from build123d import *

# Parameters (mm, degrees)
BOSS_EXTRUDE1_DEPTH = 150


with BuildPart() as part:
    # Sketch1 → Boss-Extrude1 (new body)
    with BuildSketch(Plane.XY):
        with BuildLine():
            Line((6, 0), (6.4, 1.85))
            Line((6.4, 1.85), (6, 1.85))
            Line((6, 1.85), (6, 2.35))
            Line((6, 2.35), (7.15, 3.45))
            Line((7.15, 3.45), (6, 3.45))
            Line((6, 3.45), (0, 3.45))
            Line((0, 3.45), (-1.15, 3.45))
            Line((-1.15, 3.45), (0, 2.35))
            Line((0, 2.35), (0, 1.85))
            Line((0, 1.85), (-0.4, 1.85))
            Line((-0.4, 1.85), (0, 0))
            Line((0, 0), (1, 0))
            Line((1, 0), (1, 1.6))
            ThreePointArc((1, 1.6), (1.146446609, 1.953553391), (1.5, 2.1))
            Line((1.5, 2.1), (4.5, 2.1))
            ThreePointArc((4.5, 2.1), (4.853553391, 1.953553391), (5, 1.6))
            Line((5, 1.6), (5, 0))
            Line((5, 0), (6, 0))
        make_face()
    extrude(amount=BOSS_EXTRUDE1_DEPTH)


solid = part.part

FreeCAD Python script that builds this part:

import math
import FreeCAD as App
import Part
import Sketcher
from FreeCAD import Vector
Q = App.Units.Quantity

doc = App.newDocument("Part")
params = doc.addObject("Spreadsheet::Sheet", "Params")
for row, (alias, value) in enumerate([
    ("sketch1_radius", "0.5 mm"),
    ("sketch1_width", "1 mm"),
    ("sketch1_width2", "3 mm"),
    ("sketch1_width3", "0.4 mm"),
    ("sketch1_width4", "8.3 mm"),
    ("pad1_length", "150 mm"),
], start=1):
    params.set(f"A{row}", alias)
    params.set(f"B{row}", "=" + value)
    params.setAlias(f"B{row}", alias)

body = doc.addObject("PartDesign::Body", "Body")

# Sketch on XY plane
sketch1 = body.newObject("Sketcher::SketchObject", "Sketch")
sketch1.AttachmentSupport = (doc.getObject("XY_Plane"), [""])
sketch1.MapMode = "FlatFace"
sketch1.addGeometry(Part.LineSegment(Vector(6, 0, 0), Vector(6.4, 1.85, 0)), False)
sketch1.addGeometry(Part.LineSegment(Vector(6.4, 1.85, 0), Vector(6, 1.85, 0)), False)
sketch1.addGeometry(Part.LineSegment(Vector(6, 1.85, 0), Vector(6, 2.35, 0)), False)
sketch1.addGeometry(Part.LineSegment(Vector(6, 2.35, 0), Vector(7.15, 3.45, 0)), False)
sketch1.addGeometry(Part.LineSegment(Vector(7.15, 3.45, 0), Vector(-1.15, 3.45, 0)), False)
sketch1.addGeometry(Part.LineSegment(Vector(-1.15, 3.45, 0), Vector(0, 2.35, 0)), False)
sketch1.addGeometry(Part.LineSegment(Vector(0, 2.35, 0), Vector(0, 1.85, 0)), False)
sketch1.addGeometry(Part.LineSegment(Vector(0, 1.85, 0), Vector(-0.4, 1.85, 0)), False)
sketch1.addGeometry(Part.LineSegment(Vector(-0.4, 1.85, 0), Vector(0, 0, 0)), False)
sketch1.addGeometry(Part.LineSegment(Vector(0, 0, 0), Vector(1, 0, 0)), False)
sketch1.addGeometry(Part.LineSegment(Vector(1, 0, 0), Vector(1, 1.6, 0)), False)
sketch1.addGeometry(Part.ArcOfCircle(Part.Circle(Vector(1.5, 1.6, 0), Vector(0, 0, 1), 0.5), math.radians(90), math.radians(180)), False)
sketch1.addGeometry(Part.LineSegment(Vector(1.5, 2.1, 0), Vector(4.5, 2.1, 0)), False)
sketch1.addGeometry(Part.ArcOfCircle(Part.Circle(Vector(4.5, 1.6, 0), Vector(0, 0, 1), 0.5), math.radians(0), math.radians(90)), False)
sketch1.addGeometry(Part.LineSegment(Vector(5, 1.6, 0), Vector(5, 0, 0)), False)
sketch1.addGeometry(Part.LineSegment(Vector(5, 0, 0), Vector(6, 0, 0)), False)
sketch1.addConstraint(Sketcher.Constraint("Coincident", 0, 2, 1, 1))
sketch1.addConstraint(Sketcher.Constraint("Coincident", 1, 2, 2, 1))
sketch1.addConstraint(Sketcher.Constraint("Coincident", 2, 2, 3, 1))
sketch1.addConstraint(Sketcher.Constraint("Coincident", 3, 2, 4, 1))
sketch1.addConstraint(Sketcher.Constraint("Coincident", 4, 2, 5, 1))
sketch1.addConstraint(Sketcher.Constraint("Coincident", 5, 2, 6, 1))
sketch1.addConstraint(Sketcher.Constraint("Coincident", 6, 2, 7, 1))
sketch1.addConstraint(Sketcher.Constraint("Coincident", 7, 2, 8, 1))
sketch1.addConstraint(Sketcher.Constraint("Coincident", 8, 2, 9, 1))
sketch1.addConstraint(Sketcher.Constraint("Coincident", 9, 2, 10, 1))
sketch1.addConstraint(Sketcher.Constraint("Tangent", 10, 2, 11, 2))
sketch1.addConstraint(Sketcher.Constraint("Tangent", 11, 1, 12, 1))
sketch1.addConstraint(Sketcher.Constraint("Tangent", 12, 2, 13, 2))
sketch1.addConstraint(Sketcher.Constraint("Tangent", 13, 1, 14, 1))
sketch1.addConstraint(Sketcher.Constraint("Coincident", 14, 2, 15, 1))
sketch1.addConstraint(Sketcher.Constraint("Coincident", 15, 2, 0, 1))
sketch1.addConstraint(Sketcher.Constraint("Horizontal", 1))
sketch1.addConstraint(Sketcher.Constraint("Vertical", 2))
sketch1.addConstraint(Sketcher.Constraint("Horizontal", 4))
sketch1.addConstraint(Sketcher.Constraint("Vertical", 6))
sketch1.addConstraint(Sketcher.Constraint("Horizontal", 7))
sketch1.addConstraint(Sketcher.Constraint("Horizontal", 9))
sketch1.addConstraint(Sketcher.Constraint("Vertical", 10))
sketch1.addConstraint(Sketcher.Constraint("Horizontal", 12))
sketch1.addConstraint(Sketcher.Constraint("Vertical", 14))
sketch1.addConstraint(Sketcher.Constraint("Horizontal", 15))
sketch1.addConstraint(Sketcher.Constraint("Coincident", 8, 2, -1, 1))
sketch1.addConstraint(Sketcher.Constraint("Equal", 11, 13))
sketch1.addConstraint(Sketcher.Constraint("PointOnObject", 5, 2, -2))
sketch1.addConstraint(Sketcher.Constraint("PointOnObject", 14, 2, -1))
sketch1.addConstraint(Sketcher.Constraint("Horizontal", 2, 2, 5, 2))
sketch1.addConstraint(Sketcher.Constraint("Horizontal", 1, 2, 6, 2))
sketch1.addConstraint(Sketcher.Constraint("Vertical", 2, 2, 15, 2))
sketch1.addConstraint(Sketcher.Constraint("Equal", 1, 7))
sketch1.addConstraint(Sketcher.Constraint("Equal", 9, 15))
sketch1.addConstraint(Sketcher.Constraint("Equal", 3, 5))
sketch1.addConstraint(Sketcher.Constraint("Radius", 11, Q("0.5 mm")))
sketch1.addConstraint(Sketcher.Constraint("DistanceX", 9, 1, 9, 2, Q("1 mm")))
sketch1.addConstraint(Sketcher.Constraint("DistanceX", 12, 1, 12, 2, Q("3 mm")))
sketch1.addConstraint(Sketcher.Constraint("DistanceX", 1, 2, 1, 1, Q("0.4 mm")))
sketch1.addConstraint(Sketcher.Constraint("DistanceX", 4, 2, 4, 1, Q("8.3 mm")))
sketch1.addConstraint(Sketcher.Constraint("DistanceY", 2, 1, 2, 2, Q("0.5 mm")))
sketch1.addConstraint(Sketcher.Constraint("DistanceY", 10, 1, 10, 2, Q("1.6 mm")))
sketch1.addConstraint(Sketcher.Constraint("DistanceY", 2, 2, 3, 2, Q("1.1 mm")))
sketch1.addConstraint(Sketcher.Constraint("DistanceY", -1, 1, 0, 2, Q("1.85 mm")))
sketch1.setExpression("Constraints[36]", "Params.sketch1_radius")
sketch1.setExpression("Constraints[37]", "Params.sketch1_width")
sketch1.setExpression("Constraints[38]", "Params.sketch1_width2")
sketch1.setExpression("Constraints[39]", "Params.sketch1_width3")
sketch1.setExpression("Constraints[40]", "Params.sketch1_width4")
pad1 = body.newObject("PartDesign::Pad", "Pad")
pad1.Profile = sketch1
pad1.setExpression("Length", "Params.pad1_length")

doc.recompute()
